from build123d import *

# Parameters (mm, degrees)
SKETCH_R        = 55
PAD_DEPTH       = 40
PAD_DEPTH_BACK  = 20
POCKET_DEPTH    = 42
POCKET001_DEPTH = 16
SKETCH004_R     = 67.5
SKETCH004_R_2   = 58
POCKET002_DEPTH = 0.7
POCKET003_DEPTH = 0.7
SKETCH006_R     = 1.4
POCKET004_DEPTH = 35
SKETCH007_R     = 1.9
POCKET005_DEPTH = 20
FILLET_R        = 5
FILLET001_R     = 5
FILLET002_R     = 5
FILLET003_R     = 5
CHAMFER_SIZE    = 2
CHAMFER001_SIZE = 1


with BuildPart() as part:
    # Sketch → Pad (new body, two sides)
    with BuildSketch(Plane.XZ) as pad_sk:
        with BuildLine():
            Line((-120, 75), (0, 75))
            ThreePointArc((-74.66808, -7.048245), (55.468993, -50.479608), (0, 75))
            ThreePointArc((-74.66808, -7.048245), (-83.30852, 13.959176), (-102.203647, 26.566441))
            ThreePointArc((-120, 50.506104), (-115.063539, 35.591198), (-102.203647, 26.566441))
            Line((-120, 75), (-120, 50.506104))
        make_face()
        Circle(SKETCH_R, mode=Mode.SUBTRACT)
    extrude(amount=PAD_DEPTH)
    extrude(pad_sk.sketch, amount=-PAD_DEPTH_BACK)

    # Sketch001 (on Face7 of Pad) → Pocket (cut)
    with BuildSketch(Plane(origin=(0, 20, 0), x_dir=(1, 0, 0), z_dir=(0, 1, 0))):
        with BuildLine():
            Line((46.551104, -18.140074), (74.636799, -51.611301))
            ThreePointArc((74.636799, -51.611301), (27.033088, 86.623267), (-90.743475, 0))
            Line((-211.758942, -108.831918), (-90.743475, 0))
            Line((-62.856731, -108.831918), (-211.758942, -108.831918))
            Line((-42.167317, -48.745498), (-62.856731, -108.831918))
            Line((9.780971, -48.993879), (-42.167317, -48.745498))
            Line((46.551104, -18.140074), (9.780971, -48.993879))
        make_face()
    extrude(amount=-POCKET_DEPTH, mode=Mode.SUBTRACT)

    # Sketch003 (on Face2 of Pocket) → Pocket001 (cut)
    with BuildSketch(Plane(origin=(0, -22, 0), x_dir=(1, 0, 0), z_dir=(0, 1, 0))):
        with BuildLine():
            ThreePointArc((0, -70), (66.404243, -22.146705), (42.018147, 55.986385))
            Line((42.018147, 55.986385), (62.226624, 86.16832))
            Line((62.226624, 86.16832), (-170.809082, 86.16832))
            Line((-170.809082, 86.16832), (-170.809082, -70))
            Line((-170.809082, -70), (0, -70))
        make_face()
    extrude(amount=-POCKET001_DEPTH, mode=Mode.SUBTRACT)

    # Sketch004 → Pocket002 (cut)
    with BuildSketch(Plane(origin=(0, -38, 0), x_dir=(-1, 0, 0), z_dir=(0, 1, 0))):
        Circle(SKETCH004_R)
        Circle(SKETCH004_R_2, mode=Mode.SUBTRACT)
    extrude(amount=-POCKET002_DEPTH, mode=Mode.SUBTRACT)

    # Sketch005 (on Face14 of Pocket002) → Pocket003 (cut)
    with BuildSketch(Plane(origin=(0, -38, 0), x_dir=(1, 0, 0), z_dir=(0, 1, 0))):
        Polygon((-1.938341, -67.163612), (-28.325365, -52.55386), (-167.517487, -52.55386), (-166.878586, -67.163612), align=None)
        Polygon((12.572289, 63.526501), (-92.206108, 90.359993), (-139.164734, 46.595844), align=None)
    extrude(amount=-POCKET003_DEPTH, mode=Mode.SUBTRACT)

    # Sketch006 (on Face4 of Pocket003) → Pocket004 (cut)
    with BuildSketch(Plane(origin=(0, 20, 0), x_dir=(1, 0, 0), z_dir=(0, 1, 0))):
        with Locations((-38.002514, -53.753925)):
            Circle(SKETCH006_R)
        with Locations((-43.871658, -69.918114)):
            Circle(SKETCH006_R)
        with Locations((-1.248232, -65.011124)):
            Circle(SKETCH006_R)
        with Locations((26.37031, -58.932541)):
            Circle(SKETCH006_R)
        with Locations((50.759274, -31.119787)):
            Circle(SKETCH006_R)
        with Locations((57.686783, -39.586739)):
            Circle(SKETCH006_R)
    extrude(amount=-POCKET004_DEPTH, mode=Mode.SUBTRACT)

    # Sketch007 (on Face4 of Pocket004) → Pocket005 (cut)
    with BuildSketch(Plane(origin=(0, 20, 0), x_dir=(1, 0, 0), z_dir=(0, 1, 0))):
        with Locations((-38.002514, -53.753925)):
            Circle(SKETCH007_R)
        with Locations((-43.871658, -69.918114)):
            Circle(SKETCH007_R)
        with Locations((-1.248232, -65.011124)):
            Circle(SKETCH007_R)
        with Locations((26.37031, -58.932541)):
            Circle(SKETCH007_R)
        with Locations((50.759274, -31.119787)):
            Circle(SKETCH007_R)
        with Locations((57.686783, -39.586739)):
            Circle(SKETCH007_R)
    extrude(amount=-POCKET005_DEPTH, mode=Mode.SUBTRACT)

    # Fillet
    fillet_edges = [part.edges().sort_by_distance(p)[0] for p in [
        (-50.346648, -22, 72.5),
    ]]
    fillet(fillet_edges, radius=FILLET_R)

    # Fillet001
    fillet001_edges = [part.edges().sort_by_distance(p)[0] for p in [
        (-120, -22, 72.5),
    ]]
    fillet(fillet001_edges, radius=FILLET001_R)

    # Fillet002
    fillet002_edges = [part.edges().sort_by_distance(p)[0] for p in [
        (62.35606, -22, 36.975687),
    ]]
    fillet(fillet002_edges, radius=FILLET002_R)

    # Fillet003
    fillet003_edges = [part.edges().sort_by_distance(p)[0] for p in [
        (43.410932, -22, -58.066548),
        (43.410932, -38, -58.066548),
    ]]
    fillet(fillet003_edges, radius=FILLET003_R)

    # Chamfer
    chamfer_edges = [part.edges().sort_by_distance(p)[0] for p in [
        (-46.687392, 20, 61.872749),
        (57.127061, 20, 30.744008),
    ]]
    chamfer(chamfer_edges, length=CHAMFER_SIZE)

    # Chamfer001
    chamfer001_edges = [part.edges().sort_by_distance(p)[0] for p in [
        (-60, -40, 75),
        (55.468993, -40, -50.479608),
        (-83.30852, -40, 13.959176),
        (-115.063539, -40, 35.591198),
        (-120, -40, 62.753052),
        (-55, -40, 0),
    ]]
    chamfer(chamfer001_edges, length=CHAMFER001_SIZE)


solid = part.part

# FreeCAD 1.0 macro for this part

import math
import FreeCAD as App
import Part
import Sketcher
from FreeCAD import Vector
Q = App.Units.Quantity


def edges_at(feature, points):
    """Names of the edges that pass closest to the given points."""
    edges = feature.Shape.Edges
    near = lambda p: min(range(len(edges)), key=lambda i: edges[i].distToShape(Part.Vertex(*p))[0])
    return sorted({f"Edge{near(p) + 1}" for p in points})

doc = App.newDocument("Part")
body = doc.addObject("PartDesign::Body", "Body")

sketch1 = body.newObject("Sketcher::SketchObject", "Sketch")
sketch1.AttachmentSupport = (doc.getObject("XZ_Plane"), [""])
sketch1.MapMode = "FlatFace"
sketch1.addGeometry(Part.LineSegment(Vector(0, 75, 0), Vector(-120, 75, 0)), False)
sketch1.addGeometry(Part.LineSegment(Vector(-120, 75, 0), Vector(-120, 51, 0)), False)
sketch1.addGeometry(Part.ArcOfCircle(Part.Circle(Vector(-95, 51, 0), Vector(0, 0, 1), 25), math.radians(180), math.radians(253)), False)
sketch1.addGeometry(Part.ArcOfCircle(Part.Circle(Vector(-113, -11, 0), Vector(0, 0, 1), 39), math.radians(5), math.radians(73)), False)
sketch1.addGeometry(Part.ArcOfCircle(Part.Circle(Vector(0, 0, 0), Vector(0, 0, 1), 75), math.radians(-175), math.radians(90)), False)
sketch1.addGeometry(Part.Circle(Vector(0, 0, 0), Vector(0, 0, 1), 55), False)
sketch1.addConstraint(Sketcher.Constraint("Coincident", 0, 2, 1, 1))
sketch1.addConstraint(Sketcher.Constraint("Tangent", 1, 2, 2, 1))
sketch1.addConstraint(Sketcher.Constraint("Tangent", 2, 2, 3, 2))
sketch1.addConstraint(Sketcher.Constraint("Tangent", 3, 1, 4, 1))
sketch1.addConstraint(Sketcher.Constraint("Tangent", 4, 2, 0, 1))
sketch1.addConstraint(Sketcher.Constraint("Horizontal", 0))
sketch1.addConstraint(Sketcher.Constraint("Vertical", 1))
sketch1.addConstraint(Sketcher.Constraint("Coincident", 4, 3, -1, 1))
sketch1.addConstraint(Sketcher.Constraint("Coincident", 5, 3, -1, 1))
sketch1.addConstraint(Sketcher.Constraint("Diameter", 5, Q("110 mm")))
sketch1.addConstraint(Sketcher.Constraint("Radius", 2, Q("24.999998 mm")))
sketch1.addConstraint(Sketcher.Constraint("Radius", 4, Q("75 mm")))
sketch1.addConstraint(Sketcher.Constraint("DistanceX", 0, 2, 0, 1, Q("120 mm")))
sketch1.addConstraint(Sketcher.Constraint("Radius", 3, Q("38.923461 mm")))
sketch1.addConstraint(Sketcher.Constraint("DistanceX", 3, 3, 3, 1, Q("38.751202 mm")))
pad1 = body.newObject("PartDesign::Pad", "Pad")
pad1.Profile = sketch1
pad1.Type = "TwoLengths"
pad1.Length = 40
pad1.Length2 = 20

sketch2 = body.newObject("Sketcher::SketchObject", "Sketch001")
sketch2.AttachmentSupport = (doc.getObject("XZ_Plane"), [""])
sketch2.MapMode = "FlatFace"
sketch2.AttachmentOffset = App.Placement(Vector(0, 0, -20), App.Rotation())
sketch2.addGeometry(Part.LineSegment(Vector(47, 18, 0), Vector(75, 52, 0)), False)
sketch2.addGeometry(Part.ArcOfCircle(Part.Circle(Vector(0, 0, 0), Vector(0, 0, 1), 91), math.radians(180), math.radians(395)), False)
sketch2.addGeometry(Part.LineSegment(Vector(-91, 0, 0), Vector(-212, 109, 0)), False)
sketch2.addGeometry(Part.LineSegment(Vector(-212, 109, 0), Vector(-63, 109, 0)), False)
sketch2.addGeometry(Part.LineSegment(Vector(-63, 109, 0), Vector(-42, 49, 0)), False)
sketch2.addGeometry(Part.LineSegment(Vector(-42, 49, 0), Vector(10, 49, 0)), False)
sketch2.addGeometry(Part.LineSegment(Vector(10, 49, 0), Vector(47, 18, 0)), False)
sketch2.addConstraint(Sketcher.Constraint("Coincident", 0, 2, 1, 2))
sketch2.addConstraint(Sketcher.Constraint("Coincident", 1, 1, 2, 1))
sketch2.addConstraint(Sketcher.Constraint("Coincident", 2, 2, 3, 1))
sketch2.addConstraint(Sketcher.Constraint("Coincident", 3, 2, 4, 1))
sketch2.addConstraint(Sketcher.Constraint("Coincident", 4, 2, 5, 1))
sketch2.addConstraint(Sketcher.Constraint("Coincident", 5, 2, 6, 1))
sketch2.addConstraint(Sketcher.Constraint("Coincident", 6, 2, 0, 1))
sketch2.addConstraint(Sketcher.Constraint("Horizontal", 3))
sketch2.addConstraint(Sketcher.Constraint("Coincident", 1, 3, -1, 1))
sketch2.addConstraint(Sketcher.Constraint("PointOnObject", 1, 1, -1))
sketch2.addConstraint(Sketcher.Constraint("Perpendicular", 0, 6))
sketch2.addConstraint(Sketcher.Constraint("Angle", 0, Q("49.999999 deg")))
sketch2.addConstraint(Sketcher.Constraint("Angle", 4, Q("-71 deg")))
sketch2.addConstraint(Sketcher.Constraint("Distance", 6, Q("48 mm")))
sketch2.addConstraint(Sketcher.Constraint("Radius", 1, Q("90.743475 mm")))
sketch2.addConstraint(Sketcher.Constraint("DistanceX", 3, 1, 3, 2, Q("148.902211 mm")))
sketch2.addConstraint(Sketcher.Constraint("DistanceX", -1, 1, 0, 2, Q("74.636799 mm")))
sketch2.addConstraint(Sketcher.Constraint("DistanceY", 1, 3, 4, 2, Q("48.745498 mm")))
sketch2.addConstraint(Sketcher.Constraint("Distance", 4, Q("63.548641 mm")))
sketch2.addConstraint(Sketcher.Constraint("Distance", 5, Q("51.948882 mm")))
sketch2.addConstraint(Sketcher.Constraint("DistanceX", 2, 2, -1, 1, Q("211.758942 mm")))
pocket1 = body.newObject("PartDesign::Pocket", "Pocket")
pocket1.Profile = sketch2
pocket1.Length = 42
pocket1.Reversed = True

sketch3 = body.newObject("Sketcher::SketchObject", "Sketch002")
sketch3.AttachmentSupport = (doc.getObject("XZ_Plane"), [""])
sketch3.MapMode = "FlatFace"
sketch3.AttachmentOffset = App.Placement(Vector(0, 0, 22), App.Rotation())
sketch3.addGeometry(Part.ArcOfCircle(Part.Circle(Vector(0, 0, 0), Vector(0, 0, 1), 70), math.radians(-53), math.radians(90)), False)
sketch3.addGeometry(Part.LineSegment(Vector(42, -56, 0), Vector(62, -86, 0)), False)
sketch3.addGeometry(Part.LineSegment(Vector(62, -86, 0), Vector(-171, -86, 0)), False)
sketch3.addGeometry(Part.LineSegment(Vector(-171, -86, 0), Vector(-171, 70, 0)), False)
sketch3.addGeometry(Part.LineSegment(Vector(-171, 70, 0), Vector(0, 70, 0)), False)
sketch3.addConstraint(Sketcher.Constraint("Coincident", 0, 1, 1, 1))
sketch3.addConstraint(Sketcher.Constraint("Coincident", 1, 2, 2, 1))
sketch3.addConstraint(Sketcher.Constraint("Coincident", 2, 2, 3, 1))
sketch3.addConstraint(Sketcher.Constraint("Coincident", 3, 2, 4, 1))
sketch3.addConstraint(Sketcher.Constraint("Tangent", 4, 2, 0, 2))
sketch3.addConstraint(Sketcher.Constraint("Horizontal", 2))
sketch3.addConstraint(Sketcher.Constraint("Vertical", 3))
sketch3.addConstraint(Sketcher.Constraint("Horizontal", 4))
sketch3.addConstraint(Sketcher.Constraint("Coincident", 0, 3, -1, 1))
sketch3.addConstraint(Sketcher.Constraint("Radius", 0, Q("70 mm")))
sketch3.addConstraint(Sketcher.Constraint("DistanceX", 4, 1, 4, 2, Q("170.809082 mm")))
sketch3.addConstraint(Sketcher.Constraint("DistanceY", 3, 1, 3, 2, Q("156.16832 mm")))
sketch3.addConstraint(Sketcher.Constraint("DistanceX", 2, 2, 2, 1, Q("233.035706 mm")))
sketch3.addConstraint(Sketcher.Constraint("DistanceX", 2, 2, 0, 1, Q("212.827229 mm")))
pocket2 = body.newObject("PartDesign::Pocket", "Pocket001")
pocket2.Profile = sketch3
pocket2.Length = 16
pocket2.Reversed = True

sketch4 = body.newObject("Sketcher::SketchObject", "Sketch003")
sketch4.AttachmentSupport = (doc.getObject("XZ_Plane"), [""])
sketch4.MapMode = "FlatFace"
sketch4.AttachmentOffset = App.Placement(Vector(0, 0, 38), App.Rotation())
sketch4.addGeometry(Part.Circle(Vector(0, 0, 0), Vector(0, 0, 1), 68), False)
sketch4.addGeometry(Part.Circle(Vector(0, 0, 0), Vector(0, 0, 1), 58), False)
sketch4.addConstraint(Sketcher.Constraint("Coincident", 0, 3, -1, 1))
sketch4.addConstraint(Sketcher.Constraint("Coincident", 1, 3, -1, 1))
sketch4.addConstraint(Sketcher.Constraint("Diameter", 0, Q("135 mm")))
sketch4.addConstraint(Sketcher.Constraint("Diameter", 1, Q("116 mm")))
pocket3 = body.newObject("PartDesign::Pocket", "Pocket002")
pocket3.Profile = sketch4
pocket3.Length = 0.7
pocket3.Reversed = True

sketch5 = body.newObject("Sketcher::SketchObject", "Sketch004")
sketch5.AttachmentSupport = (doc.getObject("XZ_Plane"), [""])
sketch5.MapMode = "FlatFace"
sketch5.AttachmentOffset = App.Placement(Vector(0, 0, 38), App.Rotation())
sketch5.addGeometry(Part.LineSegment(Vector(-2, 67, 0), Vector(-28, 53, 0)), False)
sketch5.addGeometry(Part.LineSegment(Vector(-28, 53, 0), Vector(-168, 53, 0)), False)
sketch5.addGeometry(Part.LineSegment(Vector(-168, 53, 0), Vector(-167, 67, 0)), False)
sketch5.addGeometry(Part.LineSegment(Vector(-167, 67, 0), Vector(-2, 67, 0)), False)
sketch5.addGeometry(Part.LineSegment(Vector(13, -64, 0), Vector(-92, -90, 0)), False)
sketch5.addGeometry(Part.LineSegment(Vector(-92, -90, 0), Vector(-139, -47, 0)), False)
sketch5.addGeometry(Part.LineSegment(Vector(-139, -47, 0), Vector(13, -64, 0)), False)
sketch5.addConstraint(Sketcher.Constraint("Coincident", 0, 2, 1, 1))
sketch5.addConstraint(Sketcher.Constraint("Coincident", 1, 2, 2, 1))
sketch5.addConstraint(Sketcher.Constraint("Coincident", 2, 2, 3, 1))
sketch5.addConstraint(Sketcher.Constraint("Coincident", 3, 2, 0, 1))
sketch5.addConstraint(Sketcher.Constraint("Coincident", 4, 2, 5, 1))
sketch5.addConstraint(Sketcher.Constraint("Coincident", 5, 2, 6, 1))
sketch5.addConstraint(Sketcher.Constraint("Coincident", 6, 2, 4, 1))
sketch5.addConstraint(Sketcher.Constraint("Horizontal", 1))
sketch5.addConstraint(Sketcher.Constraint("Horizontal", 3))
sketch5.addConstraint(Sketcher.Constraint("DistanceX", 1, 2, 1, 1, Q("139.192122 mm")))
sketch5.addConstraint(Sketcher.Constraint("DistanceY", 6, 2, -1, 1, Q("63.526501 mm")))
sketch5.addConstraint(Sketcher.Constraint("DistanceX", 1, 2, 2, 2, Q("0.638901 mm")))
sketch5.addConstraint(Sketcher.Constraint("Distance", 4, Q("108.15983 mm")))
sketch5.addConstraint(Sketcher.Constraint("DistanceX", 3, 1, 3, 2, Q("164.940245 mm")))
sketch5.addConstraint(Sketcher.Constraint("DistanceY", -1, 1, 0, 2, Q("52.55386 mm")))
sketch5.addConstraint(Sketcher.Constraint("DistanceY", -1, 1, 2, 2, Q("67.163612 mm")))
sketch5.addConstraint(Sketcher.Constraint("DistanceX", 3, 2, -1, 1, Q("1.938341 mm")))
sketch5.addConstraint(Sketcher.Constraint("DistanceX", 4, 2, -1, 1, Q("92.206108 mm")))
sketch5.addConstraint(Sketcher.Constraint("DistanceX", -1, 1, 6, 2, Q("12.572289 mm")))
sketch5.addConstraint(Sketcher.Constraint("DistanceY", 4, 2, 5, 2, Q("43.764149 mm")))
sketch5.addConstraint(Sketcher.Constraint("DistanceX", 5, 2, 0, 2, Q("110.839369 mm")))
pocket4 = body.newObject("PartDesign::Pocket", "Pocket003")
pocket4.Profile = sketch5
pocket4.Length = 0.7
pocket4.Reversed = True

sketch6 = body.newObject("Sketcher::SketchObject", "Sketch005")
sketch6.AttachmentSupport = (doc.getObject("XZ_Plane"), [""])
sketch6.MapMode = "FlatFace"
sketch6.AttachmentOffset = App.Placement(Vector(0, 0, -20), App.Rotation())
sketch6.addGeometry(Part.Circle(Vector(-38, 53.8, 0), Vector(0, 0, 1), 1.4), False)
sketch6.addGeometry(Part.Circle(Vector(-43.9, 69.9, 0), Vector(0, 0, 1), 1.4), False)
sketch6.addGeometry(Part.Circle(Vector(-1.2, 65, 0), Vector(0, 0, 1), 1.4), False)
sketch6.addGeometry(Part.Circle(Vector(26.4, 58.9, 0), Vector(0, 0, 1), 1.4), False)
sketch6.addGeometry(Part.Circle(Vector(50.8, 31.1, 0), Vector(0, 0, 1), 1.4), False)
sketch6.addGeometry(Part.Circle(Vector(57.7, 39.6, 0), Vector(0, 0, 1), 1.4), False)
sketch6.addConstraint(Sketcher.Constraint("Equal", 0, 1))
sketch6.addConstraint(Sketcher.Constraint("Equal", 1, 2))
sketch6.addConstraint(Sketcher.Constraint("Equal", 2, 3))
sketch6.addConstraint(Sketcher.Constraint("Equal", 3, 4))
sketch6.addConstraint(Sketcher.Constraint("Equal", 4, 5))
sketch6.addConstraint(Sketcher.Constraint("Diameter", 0, Q("2.8 mm")))
sketch6.addConstraint(Sketcher.Constraint("DistanceY", 0, 3, 2, 3, Q("11.257199 mm")))
sketch6.addConstraint(Sketcher.Constraint("DistanceY", 5, 3, 3, 3, Q("19.345802 mm")))
sketch6.addConstraint(Sketcher.Constraint("DistanceX", -1, 1, 3, 3, Q("26.37031 mm")))
sketch6.addConstraint(Sketcher.Constraint("DistanceY", -1, 1, 3, 3, Q("58.932541 mm")))
sketch6.addConstraint(Sketcher.Constraint("DistanceY", 0, 3, 1, 3, Q("16.164189 mm")))
sketch6.addConstraint(Sketcher.Constraint("DistanceX", 0, 3, 2, 3, Q("36.754282 mm")))
sketch6.addConstraint(Sketcher.Constraint("DistanceX", 1, 3, 3, 3, Q("70.241968 mm")))
sketch6.addConstraint(Sketcher.Constraint("DistanceY", 4, 3, 0, 3, Q("22.634138 mm")))
sketch6.addConstraint(Sketcher.Constraint("DistanceX", 1, 3, 4, 3, Q("94.630932 mm")))
sketch6.addConstraint(Sketcher.Constraint("DistanceX", 4, 3, 5, 3, Q("6.927509 mm")))
sketch6.addConstraint(Sketcher.Constraint("DistanceX", 0, 3, -1, 1, Q("38.002514 mm")))
sketch6.addConstraint(Sketcher.Constraint("DistanceY", -1, 1, 0, 3, Q("53.753925 mm")))
pocket5 = body.newObject("PartDesign::Pocket", "Pocket004")
pocket5.Profile = sketch6
pocket5.Length = 35
pocket5.Reversed = True

sketch7 = body.newObject("Sketcher::SketchObject", "Sketch006")
sketch7.AttachmentSupport = (doc.getObject("XZ_Plane"), [""])
sketch7.MapMode = "FlatFace"
sketch7.AttachmentOffset = App.Placement(Vector(0, 0, -20), App.Rotation())
sketch7.addGeometry(Part.Circle(Vector(-38, 53.8, 0), Vector(0, 0, 1), 1.9), False)
sketch7.addGeometry(Part.Circle(Vector(-43.9, 69.9, 0), Vector(0, 0, 1), 1.9), False)
sketch7.addGeometry(Part.Circle(Vector(-1.2, 65, 0), Vector(0, 0, 1), 1.9), False)
sketch7.addGeometry(Part.Circle(Vector(26.4, 58.9, 0), Vector(0, 0, 1), 1.9), False)
sketch7.addGeometry(Part.Circle(Vector(50.8, 31.1, 0), Vector(0, 0, 1), 1.9), False)
sketch7.addGeometry(Part.Circle(Vector(57.7, 39.6, 0), Vector(0, 0, 1), 1.9), False)
sketch7.addConstraint(Sketcher.Constraint("Equal", 0, 1))
sketch7.addConstraint(Sketcher.Constraint("Equal", 1, 2))
sketch7.addConstraint(Sketcher.Constraint("Equal", 2, 3))
sketch7.addConstraint(Sketcher.Constraint("Equal", 3, 4))
sketch7.addConstraint(Sketcher.Constraint("Equal", 4, 5))
sketch7.addConstraint(Sketcher.Constraint("Diameter", 0, Q("3.8 mm")))
sketch7.addConstraint(Sketcher.Constraint("DistanceY", 0, 3, 2, 3, Q("11.257199 mm")))
sketch7.addConstraint(Sketcher.Constraint("DistanceY", 5, 3, 3, 3, Q("19.345802 mm")))
sketch7.addConstraint(Sketcher.Constraint("DistanceX", -1, 1, 3, 3, Q("26.37031 mm")))
sketch7.addConstraint(Sketcher.Constraint("DistanceY", -1, 1, 3, 3, Q("58.932541 mm")))
sketch7.addConstraint(Sketcher.Constraint("DistanceY", 0, 3, 1, 3, Q("16.164189 mm")))
sketch7.addConstraint(Sketcher.Constraint("DistanceX", 0, 3, 2, 3, Q("36.754282 mm")))
sketch7.addConstraint(Sketcher.Constraint("DistanceX", 1, 3, 3, 3, Q("70.241968 mm")))
sketch7.addConstraint(Sketcher.Constraint("DistanceY", 4, 3, 0, 3, Q("22.634138 mm")))
sketch7.addConstraint(Sketcher.Constraint("DistanceX", 1, 3, 4, 3, Q("94.630932 mm")))
sketch7.addConstraint(Sketcher.Constraint("DistanceX", 4, 3, 5, 3, Q("6.927509 mm")))
sketch7.addConstraint(Sketcher.Constraint("DistanceX", 0, 3, -1, 1, Q("38.002514 mm")))
sketch7.addConstraint(Sketcher.Constraint("DistanceY", -1, 1, 0, 3, Q("53.753925 mm")))
pocket6 = body.newObject("PartDesign::Pocket", "Pocket005")
pocket6.Profile = sketch7
pocket6.Length = 20
pocket6.Reversed = True
doc.recompute()

fillet = body.newObject("PartDesign::Fillet", "Fillet")
fillet.Base = (pocket6, edges_at(pocket6, [(-50.347, -22, 72.5)]))
fillet.Radius = 5
doc.recompute()

fillet2 = body.newObject("PartDesign::Fillet", "Fillet001")
fillet2.Base = (fillet, edges_at(fillet, [(-120, -22, 72.5)]))
fillet2.Radius = 5
doc.recompute()

fillet3 = body.newObject("PartDesign::Fillet", "Fillet002")
fillet3.Base = (fillet2, edges_at(fillet2, [(62.356, -22, 36.976)]))
fillet3.Radius = 5
doc.recompute()

fillet4 = body.newObject("PartDesign::Fillet", "Fillet003")
fillet4.Base = (fillet3, edges_at(fillet3, [(43.411, -22, -58.067), (43.411, -38, -58.067)]))
fillet4.Radius = 5
doc.recompute()

chamfer = body.newObject("PartDesign::Chamfer", "Chamfer")
chamfer.Base = (fillet4, edges_at(fillet4, [(-46.687, 20, 61.873), (57.127, 20, 30.744)]))
chamfer.Size = 2
doc.recompute()

chamfer2 = body.newObject("PartDesign::Chamfer", "Chamfer001")
chamfer2.Base = (chamfer, edges_at(chamfer, [
    (-60, -40, 75),
    (55.469, -40, -50.48),
    (-83.309, -40, 13.959),
    (-115.064, -40, 35.591),
    (-120, -40, 62.753),
    (-55, -40, 0),
]))
chamfer2.Size = 1

doc.recompute()
